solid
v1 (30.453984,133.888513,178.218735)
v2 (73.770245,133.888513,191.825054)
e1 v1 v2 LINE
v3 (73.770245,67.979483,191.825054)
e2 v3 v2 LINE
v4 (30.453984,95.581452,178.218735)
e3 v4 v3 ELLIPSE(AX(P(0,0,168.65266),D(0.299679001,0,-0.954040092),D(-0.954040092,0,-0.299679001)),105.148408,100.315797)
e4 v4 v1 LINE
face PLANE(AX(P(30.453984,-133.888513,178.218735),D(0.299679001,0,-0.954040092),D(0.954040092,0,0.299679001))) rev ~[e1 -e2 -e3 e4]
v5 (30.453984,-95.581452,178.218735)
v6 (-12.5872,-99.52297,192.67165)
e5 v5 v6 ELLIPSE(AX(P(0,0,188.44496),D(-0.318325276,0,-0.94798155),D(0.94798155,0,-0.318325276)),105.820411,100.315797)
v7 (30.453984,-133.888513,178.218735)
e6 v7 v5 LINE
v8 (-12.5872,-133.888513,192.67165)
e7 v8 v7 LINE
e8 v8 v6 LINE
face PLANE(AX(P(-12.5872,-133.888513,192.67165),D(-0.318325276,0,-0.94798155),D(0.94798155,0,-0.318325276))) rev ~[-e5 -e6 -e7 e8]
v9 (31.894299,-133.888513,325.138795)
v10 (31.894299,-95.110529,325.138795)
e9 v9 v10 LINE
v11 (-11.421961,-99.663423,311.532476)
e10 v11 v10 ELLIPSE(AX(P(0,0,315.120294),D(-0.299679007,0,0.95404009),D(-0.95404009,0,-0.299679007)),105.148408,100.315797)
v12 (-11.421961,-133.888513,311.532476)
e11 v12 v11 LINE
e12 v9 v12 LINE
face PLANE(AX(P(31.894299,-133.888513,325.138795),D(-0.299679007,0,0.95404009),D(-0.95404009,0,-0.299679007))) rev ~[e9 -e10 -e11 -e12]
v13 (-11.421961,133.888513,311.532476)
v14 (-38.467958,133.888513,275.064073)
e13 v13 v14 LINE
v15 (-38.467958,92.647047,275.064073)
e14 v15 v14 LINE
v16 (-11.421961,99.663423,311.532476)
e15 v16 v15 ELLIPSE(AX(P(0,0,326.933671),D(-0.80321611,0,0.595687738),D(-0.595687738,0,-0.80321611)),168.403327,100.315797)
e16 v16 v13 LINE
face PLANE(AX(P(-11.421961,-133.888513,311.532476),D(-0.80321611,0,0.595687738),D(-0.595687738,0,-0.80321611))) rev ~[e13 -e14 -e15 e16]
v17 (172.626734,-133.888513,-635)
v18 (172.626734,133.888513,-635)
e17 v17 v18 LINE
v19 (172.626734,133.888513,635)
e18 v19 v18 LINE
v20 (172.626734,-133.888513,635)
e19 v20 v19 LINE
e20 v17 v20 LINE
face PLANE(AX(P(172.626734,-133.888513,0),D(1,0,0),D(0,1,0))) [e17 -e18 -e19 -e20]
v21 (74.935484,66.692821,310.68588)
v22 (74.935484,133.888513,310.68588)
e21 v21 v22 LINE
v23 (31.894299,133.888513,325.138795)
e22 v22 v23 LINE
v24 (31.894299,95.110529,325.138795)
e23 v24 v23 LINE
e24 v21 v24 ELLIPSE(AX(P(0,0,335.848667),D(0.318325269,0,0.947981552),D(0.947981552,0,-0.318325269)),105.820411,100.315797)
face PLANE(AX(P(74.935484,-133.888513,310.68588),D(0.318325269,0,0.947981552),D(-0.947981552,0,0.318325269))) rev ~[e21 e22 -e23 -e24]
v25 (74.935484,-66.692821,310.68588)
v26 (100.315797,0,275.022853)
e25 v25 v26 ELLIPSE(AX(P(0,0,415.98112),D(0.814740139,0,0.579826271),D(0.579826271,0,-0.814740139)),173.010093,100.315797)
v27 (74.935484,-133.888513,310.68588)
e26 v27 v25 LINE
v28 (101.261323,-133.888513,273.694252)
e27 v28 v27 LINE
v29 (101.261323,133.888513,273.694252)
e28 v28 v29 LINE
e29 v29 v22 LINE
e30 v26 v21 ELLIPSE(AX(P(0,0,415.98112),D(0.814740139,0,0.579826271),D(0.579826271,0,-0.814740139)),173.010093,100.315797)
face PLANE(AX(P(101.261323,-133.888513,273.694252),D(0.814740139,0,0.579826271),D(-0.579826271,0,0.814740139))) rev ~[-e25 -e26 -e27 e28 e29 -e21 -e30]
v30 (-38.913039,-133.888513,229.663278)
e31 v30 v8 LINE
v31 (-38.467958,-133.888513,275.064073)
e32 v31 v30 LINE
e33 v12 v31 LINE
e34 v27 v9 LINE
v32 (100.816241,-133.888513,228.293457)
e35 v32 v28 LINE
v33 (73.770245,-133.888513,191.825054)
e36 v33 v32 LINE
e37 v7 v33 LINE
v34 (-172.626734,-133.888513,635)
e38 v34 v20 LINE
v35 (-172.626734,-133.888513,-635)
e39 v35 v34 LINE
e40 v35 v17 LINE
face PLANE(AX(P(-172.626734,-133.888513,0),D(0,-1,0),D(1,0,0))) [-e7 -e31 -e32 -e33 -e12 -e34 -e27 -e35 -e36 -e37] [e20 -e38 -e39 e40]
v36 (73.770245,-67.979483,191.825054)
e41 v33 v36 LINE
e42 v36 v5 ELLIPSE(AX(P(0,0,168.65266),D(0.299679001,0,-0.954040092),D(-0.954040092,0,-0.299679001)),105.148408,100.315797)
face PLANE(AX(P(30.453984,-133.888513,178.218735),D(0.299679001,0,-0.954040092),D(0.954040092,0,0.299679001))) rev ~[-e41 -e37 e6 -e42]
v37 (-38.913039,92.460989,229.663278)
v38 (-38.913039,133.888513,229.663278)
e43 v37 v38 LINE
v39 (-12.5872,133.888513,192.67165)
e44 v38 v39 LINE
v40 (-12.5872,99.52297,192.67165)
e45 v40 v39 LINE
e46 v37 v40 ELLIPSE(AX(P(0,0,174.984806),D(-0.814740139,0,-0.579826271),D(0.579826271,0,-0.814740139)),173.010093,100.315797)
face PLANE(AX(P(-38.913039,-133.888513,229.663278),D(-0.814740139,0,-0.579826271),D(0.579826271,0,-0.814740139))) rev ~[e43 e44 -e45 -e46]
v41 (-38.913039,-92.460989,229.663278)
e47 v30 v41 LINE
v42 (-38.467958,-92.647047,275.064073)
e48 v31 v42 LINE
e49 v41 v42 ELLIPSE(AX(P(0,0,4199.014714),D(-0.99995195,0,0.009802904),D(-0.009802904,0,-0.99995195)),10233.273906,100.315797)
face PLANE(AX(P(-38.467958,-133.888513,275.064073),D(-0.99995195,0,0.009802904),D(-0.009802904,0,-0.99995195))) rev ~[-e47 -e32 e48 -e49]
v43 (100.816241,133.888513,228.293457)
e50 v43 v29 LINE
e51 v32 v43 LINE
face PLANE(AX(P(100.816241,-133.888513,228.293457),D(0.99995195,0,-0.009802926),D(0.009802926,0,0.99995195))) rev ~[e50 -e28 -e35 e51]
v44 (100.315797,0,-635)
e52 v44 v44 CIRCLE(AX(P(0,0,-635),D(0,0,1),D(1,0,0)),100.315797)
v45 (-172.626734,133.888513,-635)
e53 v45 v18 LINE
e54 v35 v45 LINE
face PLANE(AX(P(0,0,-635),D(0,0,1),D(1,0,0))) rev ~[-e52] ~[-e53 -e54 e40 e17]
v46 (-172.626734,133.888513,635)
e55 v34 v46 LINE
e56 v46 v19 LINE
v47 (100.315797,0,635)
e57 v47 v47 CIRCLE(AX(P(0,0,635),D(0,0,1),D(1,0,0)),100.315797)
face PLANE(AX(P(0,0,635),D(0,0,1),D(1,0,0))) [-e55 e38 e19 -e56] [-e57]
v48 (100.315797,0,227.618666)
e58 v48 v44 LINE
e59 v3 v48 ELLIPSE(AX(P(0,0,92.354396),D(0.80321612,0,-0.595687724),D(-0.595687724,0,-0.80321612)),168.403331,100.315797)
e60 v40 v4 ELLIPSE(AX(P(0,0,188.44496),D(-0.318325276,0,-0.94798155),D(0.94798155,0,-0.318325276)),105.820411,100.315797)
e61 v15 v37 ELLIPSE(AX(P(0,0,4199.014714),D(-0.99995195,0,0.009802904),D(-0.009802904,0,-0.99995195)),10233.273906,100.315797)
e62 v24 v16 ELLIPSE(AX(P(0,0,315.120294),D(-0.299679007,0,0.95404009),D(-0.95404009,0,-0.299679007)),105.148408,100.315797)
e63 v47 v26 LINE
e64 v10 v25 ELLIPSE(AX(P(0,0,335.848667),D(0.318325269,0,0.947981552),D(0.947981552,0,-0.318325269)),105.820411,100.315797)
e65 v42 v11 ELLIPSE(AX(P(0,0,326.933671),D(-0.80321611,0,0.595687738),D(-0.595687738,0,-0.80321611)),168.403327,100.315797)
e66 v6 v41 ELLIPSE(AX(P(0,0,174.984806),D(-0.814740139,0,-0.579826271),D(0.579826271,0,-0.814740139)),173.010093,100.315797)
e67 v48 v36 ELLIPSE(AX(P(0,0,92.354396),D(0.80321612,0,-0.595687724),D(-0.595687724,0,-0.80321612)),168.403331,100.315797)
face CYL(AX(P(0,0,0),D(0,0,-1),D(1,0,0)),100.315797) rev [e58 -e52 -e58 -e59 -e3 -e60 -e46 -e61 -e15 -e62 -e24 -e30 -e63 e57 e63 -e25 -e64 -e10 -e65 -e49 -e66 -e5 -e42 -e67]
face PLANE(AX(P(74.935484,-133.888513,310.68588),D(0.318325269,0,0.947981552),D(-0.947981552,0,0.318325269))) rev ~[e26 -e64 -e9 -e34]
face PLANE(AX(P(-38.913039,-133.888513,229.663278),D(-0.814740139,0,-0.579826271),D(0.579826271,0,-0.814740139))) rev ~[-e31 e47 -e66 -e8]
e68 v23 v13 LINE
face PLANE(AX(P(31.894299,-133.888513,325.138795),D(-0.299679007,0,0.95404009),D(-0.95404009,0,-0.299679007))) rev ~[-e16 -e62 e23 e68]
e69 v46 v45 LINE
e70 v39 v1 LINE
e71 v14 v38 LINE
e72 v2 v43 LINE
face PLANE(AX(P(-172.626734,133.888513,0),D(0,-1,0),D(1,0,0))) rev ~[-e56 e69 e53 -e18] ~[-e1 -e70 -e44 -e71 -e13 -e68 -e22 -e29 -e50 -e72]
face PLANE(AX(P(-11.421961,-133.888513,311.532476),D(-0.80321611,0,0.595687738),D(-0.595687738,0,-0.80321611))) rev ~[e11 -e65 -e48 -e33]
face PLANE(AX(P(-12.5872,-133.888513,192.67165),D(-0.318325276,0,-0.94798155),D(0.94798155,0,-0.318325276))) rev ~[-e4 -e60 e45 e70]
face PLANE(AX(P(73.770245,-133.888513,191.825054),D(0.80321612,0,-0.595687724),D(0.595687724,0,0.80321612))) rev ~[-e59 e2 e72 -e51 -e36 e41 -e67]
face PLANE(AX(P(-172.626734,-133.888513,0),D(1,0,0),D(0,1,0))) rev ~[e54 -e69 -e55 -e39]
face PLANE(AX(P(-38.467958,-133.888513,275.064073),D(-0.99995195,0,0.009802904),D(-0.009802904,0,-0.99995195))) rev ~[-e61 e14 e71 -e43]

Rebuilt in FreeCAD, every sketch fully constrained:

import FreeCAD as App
import Part
import Sketcher
from FreeCAD import Vector
Q = App.Units.Quantity

doc = App.newDocument("Part")
body = doc.addObject("PartDesign::Body", "Body")

sketch1 = body.newObject("Sketcher::SketchObject", "Sketch")
sketch1.AttachmentSupport = (doc.getObject("XY_Plane"), [""])
sketch1.MapMode = "FlatFace"
sketch1.addGeometry([
    Part.LineSegment(Vector(-172.626734, 133.888513, 0), Vector(-172.626734, -133.888513, 0)),
    Part.LineSegment(Vector(-172.626734, -133.888513, 0), Vector(172.626734, -133.888513, 0)),
    Part.LineSegment(Vector(172.626734, -133.888513, 0), Vector(172.626734, 133.888513, 0)),
    Part.LineSegment(Vector(172.626734, 133.888513, 0), Vector(-172.626734, 133.888513, 0)),
    Part.Circle(Vector(0, 0, 0), Vector(0, 0, 1), 100.315797),
], False)
sketch1.addConstraint([
    Sketcher.Constraint("Coincident", 0, 2, 1, 1),
    Sketcher.Constraint("Coincident", 1, 2, 2, 1),
    Sketcher.Constraint("Coincident", 2, 2, 3, 1),
    Sketcher.Constraint("Coincident", 3, 2, 0, 1),
    Sketcher.Constraint("Vertical", 0),
    Sketcher.Constraint("Horizontal", 1),
    Sketcher.Constraint("Vertical", 2),
    Sketcher.Constraint("Horizontal", 3),
    Sketcher.Constraint("Coincident", 4, 3, -1, 1),
    Sketcher.Constraint("Symmetric", 0, 2, 2, 2, -1, 1),
    Sketcher.Constraint("Diameter", 4, Q("200.631594 mm")),
    Sketcher.Constraint("DistanceX", 1, 1, 1, 2, Q("345.253468 mm")),
    Sketcher.Constraint("DistanceY", 0, 2, 0, 1, Q("267.777026 mm")),
])
pad1 = body.newObject("PartDesign::Pad", "Pad")
pad1.Profile = sketch1
pad1.Length = Q("50 in")
pad1.Midplane = True

sketch2 = body.newObject("Sketcher::SketchObject", "Sketch001")
sketch2.AttachmentSupport = (doc.getObject("XZ_Plane"), [""])
sketch2.MapMode = "FlatFace"
sketch2.AttachmentOffset = App.Placement(Vector(0, 0, 133.888513), App.Rotation())
sketch2.addGeometry([
    Part.LineSegment(Vector(-11.421961, 311.532476, 0), Vector(-38.467958, 275.064073, 0)),
    Part.LineSegment(Vector(-38.467958, 275.064073, 0), Vector(-38.913039, 229.663278, 0)),
    Part.LineSegment(Vector(-38.913039, 229.663278, 0), Vector(-12.5872, 192.67165, 0)),
    Part.LineSegment(Vector(-12.5872, 192.67165, 0), Vector(30.453984, 178.218735, 0)),
    Part.LineSegment(Vector(30.453984, 178.218735, 0), Vector(73.770245, 191.825054, 0)),
    Part.LineSegment(Vector(73.770245, 191.825054, 0), Vector(100.816241, 228.293457, 0)),
    Part.LineSegment(Vector(100.816241, 228.293457, 0), Vector(101.261323, 273.694252, 0)),
    Part.LineSegment(Vector(101.261323, 273.694252, 0), Vector(74.935484, 310.68588, 0)),
    Part.LineSegment(Vector(74.935484, 310.68588, 0), Vector(31.894299, 325.138795, 0)),
    Part.LineSegment(Vector(31.894299, 325.138795, 0), Vector(-11.421961, 311.532476, 0)),
], False)
sketch2.addConstraint([
    Sketcher.Constraint("Coincident", 0, 2, 1, 1),
    Sketcher.Constraint("Coincident", 1, 2, 2, 1),
    Sketcher.Constraint("Coincident", 2, 2, 3, 1),
    Sketcher.Constraint("Coincident", 3, 2, 4, 1),
    Sketcher.Constraint("Coincident", 4, 2, 5, 1),
    Sketcher.Constraint("Coincident", 5, 2, 6, 1),
    Sketcher.Constraint("Coincident", 6, 2, 7, 1),
    Sketcher.Constraint("Coincident", 7, 2, 8, 1),
    Sketcher.Constraint("Coincident", 8, 2, 9, 1),
    Sketcher.Constraint("Coincident", 9, 2, 0, 1),
    Sketcher.Constraint("Parallel", 0, 5),
    Sketcher.Constraint("Parallel", 1, 6),
    Sketcher.Constraint("Parallel", 2, 7),
    Sketcher.Constraint("Parallel", 3, 8),
    Sketcher.Constraint("Parallel", 4, 9),
    Sketcher.Constraint("Equal", 0, 1),
    Sketcher.Constraint("Equal", 1, 2),
    Sketcher.Constraint("Equal", 2, 3),
    Sketcher.Constraint("Equal", 3, 4),
    Sketcher.Constraint("Equal", 4, 5),
    Sketcher.Constraint("Equal", 5, 6),
    Sketcher.Constraint("Equal", 6, 7),
    Sketcher.Constraint("DistanceX", 2, 2, -1, 1, Q("12.5872 mm")),
    Sketcher.Constraint("DistanceX", -1, 1, 8, 2, Q("31.894299 mm")),
    Sketcher.Constraint("DistanceX", 0, 2, 5, 2, Q("139.284199 mm")),
    Sketcher.Constraint("DistanceY", 4, 2, 6, 2, Q("81.869198 mm")),
    Sketcher.Constraint("DistanceX", 0, 2, -1, 1, Q("38.467958 mm")),
    Sketcher.Constraint("DistanceX", 1, 2, -1, 1, Q("38.913039 mm")),
    Sketcher.Constraint("DistanceY", -1, 1, 1, 2, Q("229.663278 mm")),
    Sketcher.Constraint("DistanceY", -1, 1, 2, 2, Q("192.67165 mm")),
])
pocket1 = body.newObject("PartDesign::Pocket", "Pocket")
pocket1.Profile = sketch2
pocket1.Length = Q("15 in")

doc.recompute()
